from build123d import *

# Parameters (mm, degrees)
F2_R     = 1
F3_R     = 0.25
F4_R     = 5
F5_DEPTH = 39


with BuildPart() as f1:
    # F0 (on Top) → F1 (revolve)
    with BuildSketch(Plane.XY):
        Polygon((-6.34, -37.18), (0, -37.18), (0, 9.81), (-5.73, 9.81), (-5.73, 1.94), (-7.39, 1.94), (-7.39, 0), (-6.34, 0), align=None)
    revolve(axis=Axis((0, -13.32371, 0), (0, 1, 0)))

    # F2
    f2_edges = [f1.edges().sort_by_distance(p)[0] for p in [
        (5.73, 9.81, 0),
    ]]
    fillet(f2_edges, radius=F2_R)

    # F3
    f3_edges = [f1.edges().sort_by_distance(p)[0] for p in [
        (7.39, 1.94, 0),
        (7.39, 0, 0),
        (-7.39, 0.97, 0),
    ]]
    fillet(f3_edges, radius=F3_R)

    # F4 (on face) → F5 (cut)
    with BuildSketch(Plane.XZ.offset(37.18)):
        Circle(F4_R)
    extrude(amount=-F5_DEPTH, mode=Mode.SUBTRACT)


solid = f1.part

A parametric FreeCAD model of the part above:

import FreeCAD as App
import Part
import Sketcher
from FreeCAD import Vector


def edges_at(feature, points):
    """Names of the edges that pass closest to the given points."""
    edges = feature.Shape.Edges
    near = lambda p: min(range(len(edges)), key=lambda i: edges[i].distToShape(Part.Vertex(*p))[0])
    return sorted({f"Edge{near(p) + 1}" for p in points})

doc = App.newDocument("Part")
body = doc.addObject("PartDesign::Body", "Body")

sketch1 = body.newObject("Sketcher::SketchObject", "Sketch")
sketch1.AttachmentSupport = (doc.getObject("XY_Plane"), [""])
sketch1.MapMode = "FlatFace"
sketch1.addGeometry([
    Part.LineSegment(Vector(-6.3, -37.2, 0), Vector(0, -37.2, 0)),
    Part.LineSegment(Vector(0, -37.2, 0), Vector(0, 9.8, 0)),
    Part.LineSegment(Vector(0, 9.8, 0), Vector(-5.7, 9.8, 0)),
    Part.LineSegment(Vector(-5.7, 9.8, 0), Vector(-5.7, 1.9, 0)),
    Part.LineSegment(Vector(-5.7, 1.9, 0), Vector(-7.4, 1.9, 0)),
    Part.LineSegment(Vector(-7.4, 1.9, 0), Vector(-7.4, 0, 0)),
    Part.LineSegment(Vector(-7.4, 0, 0), Vector(-6.3, 0, 0)),
    Part.LineSegment(Vector(-6.3, 0, 0), Vector(-6.3, -37.2, 0)),
], False)
sketch1.addConstraint([
    Sketcher.Constraint("Coincident", 0, 2, 1, 1),
    Sketcher.Constraint("Coincident", 1, 2, 2, 1),
    Sketcher.Constraint("Coincident", 2, 2, 3, 1),
    Sketcher.Constraint("Coincident", 3, 2, 4, 1),
    Sketcher.Constraint("Coincident", 4, 2, 5, 1),
    Sketcher.Constraint("Coincident", 5, 2, 6, 1),
    Sketcher.Constraint("Coincident", 6, 2, 7, 1),
    Sketcher.Constraint("Coincident", 7, 2, 0, 1),
    Sketcher.Constraint("Horizontal", 0),
    Sketcher.Constraint("Vertical", 1),
    Sketcher.Constraint("Horizontal", 2),
    Sketcher.Constraint("Vertical", 3),
    Sketcher.Constraint("Horizontal", 4),
    Sketcher.Constraint("Vertical", 5),
    Sketcher.Constraint("Horizontal", 6),
    Sketcher.Constraint("Vertical", 7),
    Sketcher.Constraint("PointOnObject", 0, 2, -2),
    Sketcher.Constraint("PointOnObject", 5, 2, -1),
    Sketcher.Constraint("DistanceX", 0, 1, 0, 2, 6.34),
    Sketcher.Constraint("DistanceX", 2, 2, 2, 1, 5.73),
    Sketcher.Constraint("DistanceX", 4, 2, 4, 1, 1.66),
    Sketcher.Constraint("DistanceY", 1, 1, 1, 2, 46.99),
    Sketcher.Constraint("DistanceY", 3, 2, 3, 1, 7.87),
    Sketcher.Constraint("DistanceY", 5, 2, 5, 1, 1.94),
])
revolution = body.newObject("PartDesign::Revolution", "Revolution")
revolution.Profile = sketch1
revolution.ReferenceAxis = (sketch1, ["V_Axis"])
revolution.Angle = 360
doc.recompute()

fillet = body.newObject("PartDesign::Fillet", "Fillet")
fillet.Base = (revolution, edges_at(revolution, [(5.73, 9.81, 0)]))
fillet.Radius = 1
doc.recompute()

fillet2 = body.newObject("PartDesign::Fillet", "Fillet001")
fillet2.Base = (fillet, edges_at(fillet, [(7.39, 1.94, 0), (7.39, 0, 0), (-7.39, 0.97, 0)]))
fillet2.Radius = 0.25

sketch2 = body.newObject("Sketcher::SketchObject", "Sketch001")
sketch2.AttachmentSupport = (doc.getObject("XZ_Plane"), [""])
sketch2.MapMode = "FlatFace"
sketch2.AttachmentOffset = App.Placement(Vector(0, 0, 37.18), App.Rotation())
sketch2.addGeometry(Part.Circle(Vector(0, 0, 0), Vector(0, 0, 1), 5), False)
sketch2.addConstraint([
    Sketcher.Constraint("Coincident", 0, 3, -1, 1),
    Sketcher.Constraint("Diameter", 0, 10.0),
])
pocket1 = body.newObject("PartDesign::Pocket", "Pocket")
pocket1.Profile = sketch2
pocket1.Length = 39

doc.recompute()
